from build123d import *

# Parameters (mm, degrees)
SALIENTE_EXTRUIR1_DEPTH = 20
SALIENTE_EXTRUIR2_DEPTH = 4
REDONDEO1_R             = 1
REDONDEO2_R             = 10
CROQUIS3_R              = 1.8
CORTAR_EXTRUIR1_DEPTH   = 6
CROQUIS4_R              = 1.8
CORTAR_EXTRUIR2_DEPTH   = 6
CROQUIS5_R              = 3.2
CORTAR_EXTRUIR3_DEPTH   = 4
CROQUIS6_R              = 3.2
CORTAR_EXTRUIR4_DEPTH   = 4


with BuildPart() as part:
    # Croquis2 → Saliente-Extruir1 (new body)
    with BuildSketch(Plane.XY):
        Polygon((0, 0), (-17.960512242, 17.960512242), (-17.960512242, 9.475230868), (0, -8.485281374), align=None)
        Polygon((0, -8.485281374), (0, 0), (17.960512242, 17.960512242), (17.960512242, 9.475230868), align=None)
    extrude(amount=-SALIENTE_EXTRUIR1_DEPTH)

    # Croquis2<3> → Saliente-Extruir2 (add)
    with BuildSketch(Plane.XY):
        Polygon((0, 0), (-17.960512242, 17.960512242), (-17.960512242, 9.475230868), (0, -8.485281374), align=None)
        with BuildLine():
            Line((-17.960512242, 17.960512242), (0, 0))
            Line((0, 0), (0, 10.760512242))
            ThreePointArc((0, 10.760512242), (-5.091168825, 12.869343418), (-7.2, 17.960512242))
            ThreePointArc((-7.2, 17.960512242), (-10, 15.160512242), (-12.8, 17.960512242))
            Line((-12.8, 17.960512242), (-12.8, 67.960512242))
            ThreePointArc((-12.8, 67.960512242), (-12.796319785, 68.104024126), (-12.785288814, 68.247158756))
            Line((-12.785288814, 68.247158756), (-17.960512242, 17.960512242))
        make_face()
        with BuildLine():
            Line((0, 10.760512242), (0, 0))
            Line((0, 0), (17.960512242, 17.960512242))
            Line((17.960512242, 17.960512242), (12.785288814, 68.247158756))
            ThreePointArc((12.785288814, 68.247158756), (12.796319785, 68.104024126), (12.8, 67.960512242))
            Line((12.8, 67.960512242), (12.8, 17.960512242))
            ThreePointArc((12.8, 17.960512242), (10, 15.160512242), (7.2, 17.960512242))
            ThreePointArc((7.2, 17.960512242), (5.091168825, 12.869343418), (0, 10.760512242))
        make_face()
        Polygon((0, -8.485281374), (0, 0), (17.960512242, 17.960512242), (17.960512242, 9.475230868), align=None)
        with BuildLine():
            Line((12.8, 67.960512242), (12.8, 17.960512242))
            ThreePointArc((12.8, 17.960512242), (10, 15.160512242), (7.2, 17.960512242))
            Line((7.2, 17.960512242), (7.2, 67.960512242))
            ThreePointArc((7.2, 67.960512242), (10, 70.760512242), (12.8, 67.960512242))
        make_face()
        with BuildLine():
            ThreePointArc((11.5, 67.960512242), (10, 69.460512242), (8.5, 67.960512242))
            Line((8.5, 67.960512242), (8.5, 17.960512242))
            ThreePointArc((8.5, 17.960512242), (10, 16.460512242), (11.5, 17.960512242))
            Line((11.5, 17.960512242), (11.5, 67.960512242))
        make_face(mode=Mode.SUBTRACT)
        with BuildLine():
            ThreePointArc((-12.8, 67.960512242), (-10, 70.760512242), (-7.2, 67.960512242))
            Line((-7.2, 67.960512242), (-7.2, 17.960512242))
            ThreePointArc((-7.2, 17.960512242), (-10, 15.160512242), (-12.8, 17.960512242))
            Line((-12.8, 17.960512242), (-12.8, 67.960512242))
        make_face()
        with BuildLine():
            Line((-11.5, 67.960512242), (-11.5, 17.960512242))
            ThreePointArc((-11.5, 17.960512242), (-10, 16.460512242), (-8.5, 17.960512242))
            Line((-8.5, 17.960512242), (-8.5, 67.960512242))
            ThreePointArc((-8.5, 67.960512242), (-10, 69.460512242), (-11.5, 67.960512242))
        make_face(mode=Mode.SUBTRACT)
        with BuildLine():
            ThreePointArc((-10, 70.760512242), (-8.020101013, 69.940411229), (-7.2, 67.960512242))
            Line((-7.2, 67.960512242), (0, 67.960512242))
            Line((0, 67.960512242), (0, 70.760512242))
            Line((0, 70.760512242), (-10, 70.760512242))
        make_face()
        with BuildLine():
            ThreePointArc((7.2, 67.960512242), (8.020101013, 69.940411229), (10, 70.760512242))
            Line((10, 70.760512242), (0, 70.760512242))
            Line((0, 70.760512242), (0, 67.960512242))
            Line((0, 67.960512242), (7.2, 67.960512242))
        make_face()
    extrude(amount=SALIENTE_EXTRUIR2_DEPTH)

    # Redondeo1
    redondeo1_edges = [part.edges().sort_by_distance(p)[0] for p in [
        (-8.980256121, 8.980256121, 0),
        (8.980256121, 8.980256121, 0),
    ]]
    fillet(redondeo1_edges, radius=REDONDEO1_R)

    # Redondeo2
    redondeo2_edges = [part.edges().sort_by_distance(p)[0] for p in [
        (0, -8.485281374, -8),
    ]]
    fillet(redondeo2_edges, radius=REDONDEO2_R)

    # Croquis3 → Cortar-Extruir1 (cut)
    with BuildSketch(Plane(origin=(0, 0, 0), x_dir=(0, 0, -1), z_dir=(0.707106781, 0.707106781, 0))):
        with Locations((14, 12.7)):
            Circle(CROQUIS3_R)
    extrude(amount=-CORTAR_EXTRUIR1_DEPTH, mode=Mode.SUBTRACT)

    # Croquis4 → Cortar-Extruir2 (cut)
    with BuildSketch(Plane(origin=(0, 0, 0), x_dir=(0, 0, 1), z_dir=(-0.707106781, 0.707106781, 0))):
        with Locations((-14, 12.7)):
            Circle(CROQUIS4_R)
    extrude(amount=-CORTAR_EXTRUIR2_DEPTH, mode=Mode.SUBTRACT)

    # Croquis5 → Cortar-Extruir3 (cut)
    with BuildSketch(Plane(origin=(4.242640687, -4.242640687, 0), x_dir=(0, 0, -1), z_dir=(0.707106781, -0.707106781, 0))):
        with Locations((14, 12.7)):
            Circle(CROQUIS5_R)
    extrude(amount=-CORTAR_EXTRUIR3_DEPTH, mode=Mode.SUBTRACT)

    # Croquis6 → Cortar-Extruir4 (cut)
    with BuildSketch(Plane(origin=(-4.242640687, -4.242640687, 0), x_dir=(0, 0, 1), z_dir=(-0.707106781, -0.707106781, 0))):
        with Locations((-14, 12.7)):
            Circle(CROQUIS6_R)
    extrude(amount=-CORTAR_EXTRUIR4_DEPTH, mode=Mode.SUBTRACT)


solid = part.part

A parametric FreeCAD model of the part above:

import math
import FreeCAD as App
import Part
import Sketcher
from FreeCAD import Vector
Q = App.Units.Quantity


def edges_at(feature, points):
    """Names of the edges that pass closest to the given points."""
    edges = feature.Shape.Edges
    near = lambda p: min(range(len(edges)), key=lambda i: edges[i].distToShape(Part.Vertex(*p))[0])
    return sorted({f"Edge{near(p) + 1}" for p in points})

doc = App.newDocument("Part")
body = doc.addObject("PartDesign::Body", "Body")

# Sketch on XY plane
sketch1 = doc.addObject("Sketcher::SketchObject", "Sketch")
body.addObject(sketch1)
sketch1.AttachmentSupport = (doc.XY_Plane, [""])
sketch1.MapMode = "FlatFace"
sketch1.addGeometry(Part.LineSegment(Vector(0, 0, 0), Vector(-18, 18, 0)), False)
sketch1.addGeometry(Part.LineSegment(Vector(-18, 18, 0), Vector(-18, 9, 0)), False)
sketch1.addGeometry(Part.LineSegment(Vector(-18, 9, 0), Vector(0, -8, 0)), False)
sketch1.addGeometry(Part.LineSegment(Vector(0, -8, 0), Vector(18, 9, 0)), False)
sketch1.addGeometry(Part.LineSegment(Vector(18, 9, 0), Vector(18, 18, 0)), False)
sketch1.addGeometry(Part.LineSegment(Vector(18, 18, 0), Vector(0, 0, 0)), False)
sketch1.addConstraint(Sketcher.Constraint("Coincident", 0, 2, 1, 1))
sketch1.addConstraint(Sketcher.Constraint("Coincident", 1, 2, 2, 1))
sketch1.addConstraint(Sketcher.Constraint("Coincident", 2, 2, 3, 1))
sketch1.addConstraint(Sketcher.Constraint("Coincident", 3, 2, 4, 1))
sketch1.addConstraint(Sketcher.Constraint("Coincident", 4, 2, 5, 1))
sketch1.addConstraint(Sketcher.Constraint("Coincident", 5, 2, 0, 1))
sketch1.addConstraint(Sketcher.Constraint("Vertical", 1))
sketch1.addConstraint(Sketcher.Constraint("Vertical", 4))
sketch1.addConstraint(Sketcher.Constraint("Coincident", 5, 2, -1, 1))
sketch1.addConstraint(Sketcher.Constraint("Symmetric", 1, 2, 3, 2, -2))
sketch1.addConstraint(Sketcher.Constraint("PointOnObject", 2, 2, -2))
sketch1.addConstraint(Sketcher.Constraint("Parallel", 0, 2))
sketch1.addConstraint(Sketcher.Constraint("Perpendicular", 2, 3))
sketch1.addConstraint(Sketcher.Constraint("Parallel", 3, 5))
sketch1.addConstraint(Sketcher.Constraint("Distance", 0, Q("25.4 mm")))
sketch1.addConstraint(Sketcher.Constraint("DistanceY", 1, 2, 1, 1, Q("8.485281 mm")))
pad1 = doc.addObject("PartDesign::Pad", "Pad")
body.addObject(pad1)
pad1.Profile = sketch1
pad1.Length = 20
pad1.Reversed = True

# Sketch on XY plane
sketch2 = doc.addObject("Sketcher::SketchObject", "Sketch001")
body.addObject(sketch2)
sketch2.AttachmentSupport = (doc.XY_Plane, [""])
sketch2.MapMode = "FlatFace"
sketch2.addGeometry(Part.LineSegment(Vector(-18, 18, 0), Vector(-18, 9.5, 0)), False)
sketch2.addGeometry(Part.LineSegment(Vector(-18, 9.5, 0), Vector(0, -8.5, 0)), False)
sketch2.addGeometry(Part.LineSegment(Vector(0, -8.5, 0), Vector(18, 9.5, 0)), False)
sketch2.addGeometry(Part.LineSegment(Vector(18, 9.5, 0), Vector(18, 18, 0)), False)
sketch2.addGeometry(Part.LineSegment(Vector(18, 18, 0), Vector(12.8, 68.2, 0)), False)
sketch2.addGeometry(Part.ArcOfCircle(Part.Circle(Vector(10, 68, 0), Vector(0, 0, 1), 2.8), math.radians(6), math.radians(90)), False)
sketch2.addGeometry(Part.LineSegment(Vector(10, 70.8, 0), Vector(-10, 70.8, 0)), False)
sketch2.addGeometry(Part.ArcOfCircle(Part.Circle(Vector(-10, 68, 0), Vector(0, 0, 1), 2.8), math.radians(90), math.radians(174)), False)
sketch2.addGeometry(Part.LineSegment(Vector(-12.8, 68.2, 0), Vector(-18, 18, 0)), False)
sketch2.addGeometry(Part.LineSegment(Vector(7.2, 68, 0), Vector(7.2, 18, 0)), False)
sketch2.addGeometry(Part.ArcOfCircle(Part.Circle(Vector(0, 18, 0), Vector(0, 0, 1), 7.2), math.radians(-90), math.radians(0)), False)
sketch2.addGeometry(Part.ArcOfCircle(Part.Circle(Vector(0, 18, 0), Vector(0, 0, 1), 7.2), math.radians(180), math.radians(270)), False)
sketch2.addGeometry(Part.LineSegment(Vector(-7.2, 18, 0), Vector(-7.2, 68, 0)), False)
sketch2.addGeometry(Part.LineSegment(Vector(-7.2, 68, 0), Vector(7.2, 68, 0)), False)
sketch2.addGeometry(Part.LineSegment(Vector(-11.5, 18, 0), Vector(-11.5, 68, 0)), False)
sketch2.addGeometry(Part.ArcOfCircle(Part.Circle(Vector(-10, 68, 0), Vector(0, 0, 1), 1.5), math.radians(0), math.radians(180)), False)
sketch2.addGeometry(Part.LineSegment(Vector(-8.5, 68, 0), Vector(-8.5, 18, 0)), False)
sketch2.addGeometry(Part.ArcOfCircle(Part.Circle(Vector(-10, 18, 0), Vector(0, 0, 1), 1.5), math.radians(180), math.radians(360)), False)
sketch2.addGeometry(Part.ArcOfCircle(Part.Circle(Vector(10, 68, 0), Vector(0, 0, 1), 1.5), math.radians(0), math.radians(180)), False)
sketch2.addGeometry(Part.LineSegment(Vector(11.5, 68, 0), Vector(11.5, 18, 0)), False)
sketch2.addGeometry(Part.ArcOfCircle(Part.Circle(Vector(10, 18, 0), Vector(0, 0, 1), 1.5), math.radians(180), math.radians(360)), False)
sketch2.addGeometry(Part.LineSegment(Vector(8.5, 18, 0), Vector(8.5, 68, 0)), False)
sketch2.addConstraint(Sketcher.Constraint("Coincident", 0, 2, 1, 1))
sketch2.addConstraint(Sketcher.Constraint("Coincident", 1, 2, 2, 1))
sketch2.addConstraint(Sketcher.Constraint("Coincident", 2, 2, 3, 1))
sketch2.addConstraint(Sketcher.Constraint("Coincident", 3, 2, 4, 1))
sketch2.addConstraint(Sketcher.Constraint("Tangent", 4, 2, 5, 1))
sketch2.addConstraint(Sketcher.Constraint("Tangent", 5, 2, 6, 1))
sketch2.addConstraint(Sketcher.Constraint("Tangent", 6, 2, 7, 1))
sketch2.addConstraint(Sketcher.Constraint("Tangent", 7, 2, 8, 1))
sketch2.addConstraint(Sketcher.Constraint("Coincident", 8, 2, 0, 1))
sketch2.addConstraint(Sketcher.Constraint("Tangent", 9, 2, 10, 2))
sketch2.addConstraint(Sketcher.Constraint("Tangent", 10, 1, 11, 2))
sketch2.addConstraint(Sketcher.Constraint("Tangent", 11, 1, 12, 1))
sketch2.addConstraint(Sketcher.Constraint("Coincident", 12, 2, 13, 1))
sketch2.addConstraint(Sketcher.Constraint("Coincident", 13, 2, 9, 1))
sketch2.addConstraint(Sketcher.Constraint("Tangent", 14, 2, 15, 2))
sketch2.addConstraint(Sketcher.Constraint("Tangent", 15, 1, 16, 1))
sketch2.addConstraint(Sketcher.Constraint("Tangent", 16, 2, 17, 2))
sketch2.addConstraint(Sketcher.Constraint("Tangent", 17, 1, 14, 1))
sketch2.addConstraint(Sketcher.Constraint("Tangent", 18, 1, 19, 1))
sketch2.addConstraint(Sketcher.Constraint("Tangent", 19, 2, 20, 2))
sketch2.addConstraint(Sketcher.Constraint("Tangent", 20, 1, 21, 1))
sketch2.addConstraint(Sketcher.Constraint("Tangent", 21, 2, 18, 2))
sketch2.addConstraint(Sketcher.Constraint("Vertical", 0))
sketch2.addConstraint(Sketcher.Constraint("Vertical", 3))
sketch2.addConstraint(Sketcher.Constraint("Horizontal", 6))
sketch2.addConstraint(Sketcher.Constraint("Vertical", 9))
sketch2.addConstraint(Sketcher.Constraint("Vertical", 12))
sketch2.addConstraint(Sketcher.Constraint("Horizontal", 13))
sketch2.addConstraint(Sketcher.Constraint("Vertical", 14))
sketch2.addConstraint(Sketcher.Constraint("Vertical", 16))
sketch2.addConstraint(Sketcher.Constraint("Vertical", 19))
sketch2.addConstraint(Sketcher.Constraint("Vertical", 21))
sketch2.addConstraint(Sketcher.Constraint("Coincident", 15, 3, 7, 3))
sketch2.addConstraint(Sketcher.Constraint("Coincident", 18, 3, 5, 3))
sketch2.addConstraint(Sketcher.Constraint("Equal", 5, 7))
sketch2.addConstraint(Sketcher.Constraint("Equal", 10, 11))
sketch2.addConstraint(Sketcher.Constraint("Equal", 17, 18))
sketch2.addConstraint(Sketcher.Constraint("Symmetric", 17, 3, 20, 3, -2))
sketch2.addConstraint(Sketcher.Constraint("Symmetric", 0, 2, 2, 2, -2))
sketch2.addConstraint(Sketcher.Constraint("PointOnObject", 10, 3, -2))
sketch2.addConstraint(Sketcher.Constraint("PointOnObject", 1, 2, -2))
sketch2.addConstraint(Sketcher.Constraint("PointOnObject", 10, 1, -2))
sketch2.addConstraint(Sketcher.Constraint("Perpendicular", 1, 2))
sketch2.addConstraint(Sketcher.Constraint("Horizontal", 11, 3, 17, 3))
sketch2.addConstraint(Sketcher.Constraint("Horizontal", 20, 3, 3, 2))
sketch2.addConstraint(Sketcher.Constraint("Horizontal", 3, 2, 8, 2))
sketch2.addConstraint(Sketcher.Constraint("Horizontal", 18, 3, 12, 2))
sketch2.addConstraint(Sketcher.Constraint("Radius", 5, Q("2.8 mm")))
sketch2.addConstraint(Sketcher.Constraint("Radius", 10, Q("7.2 mm")))
sketch2.addConstraint(Sketcher.Constraint("Radius", 15, Q("1.5 mm")))
sketch2.addConstraint(Sketcher.Constraint("DistanceX", 6, 2, 6, 1, Q("20 mm")))
sketch2.addConstraint(Sketcher.Constraint("DistanceY", 9, 2, 9, 1, Q("50 mm")))
sketch2.addConstraint(Sketcher.Constraint("Distance", 1, Q("25.4 mm")))
sketch2.addConstraint(Sketcher.Constraint("DistanceY", 0, 2, 0, 1, Q("8.485281 mm")))
sketch2.addConstraint(Sketcher.Constraint("DistanceY", -1, 1, 0, 2, Q("9.475231 mm")))
pad2 = doc.addObject("PartDesign::Pad", "Pad001")
body.addObject(pad2)
pad2.Profile = sketch2
pad2.Length = 4
doc.recompute()

fillet = doc.addObject("PartDesign::Fillet", "Fillet")
body.addObject(fillet)
fillet.Base = (pad2, edges_at(pad2, [(-8.98, 8.98, 0), (8.98, 8.98, 0)]))
fillet.Radius = 1
doc.recompute()

fillet2 = doc.addObject("PartDesign::Fillet", "Fillet001")
body.addObject(fillet2)
fillet2.Base = (fillet, edges_at(fillet, [(0, -8.485, -8)]))
fillet2.Radius = 10

# Sketch on an angled plane
sketch3 = doc.addObject("Sketcher::SketchObject", "Sketch002")
body.addObject(sketch3)
sketch3.Placement = App.Placement(Vector(0, 0, 0), App.Rotation(Vector(0, 0, -1), Vector(-0.707106781, 0.707106781, 0), Vector(0.707106781, 0.707106781, 0), "ZXY"))
sketch3.addGeometry(Part.Circle(Vector(14, 12.7, 0), Vector(0, 0, 1), 1.8), False)
sketch3.addConstraint(Sketcher.Constraint("Diameter", 0, Q("3.6 mm")))
sketch3.addConstraint(Sketcher.Constraint("DistanceX", -1, 1, 0, 3, Q("14 mm")))
sketch3.addConstraint(Sketcher.Constraint("DistanceY", -1, 1, 0, 3, Q("12.7 mm")))
pocket1 = doc.addObject("PartDesign::Pocket", "Pocket")
body.addObject(pocket1)
pocket1.Profile = sketch3
pocket1.Length = 6

# Sketch on an angled plane
sketch4 = doc.addObject("Sketcher::SketchObject", "Sketch003")
body.addObject(sketch4)
sketch4.Placement = App.Placement(Vector(0, 0, 0), App.Rotation(Vector(0, 0, 1), Vector(0.707106781, 0.707106781, 0), Vector(-0.707106781, 0.707106781, 0), "ZXY"))
sketch4.addGeometry(Part.Circle(Vector(-14, 12.7, 0), Vector(0, 0, 1), 1.8), False)
sketch4.addConstraint(Sketcher.Constraint("Diameter", 0, Q("3.6 mm")))
sketch4.addConstraint(Sketcher.Constraint("DistanceX", 0, 3, -1, 1, Q("14 mm")))
sketch4.addConstraint(Sketcher.Constraint("DistanceY", -1, 1, 0, 3, Q("12.7 mm")))
pocket2 = doc.addObject("PartDesign::Pocket", "Pocket001")
body.addObject(pocket2)
pocket2.Profile = sketch4
pocket2.Length = 6

# Sketch on an angled plane
sketch5 = doc.addObject("Sketcher::SketchObject", "Sketch004")
body.addObject(sketch5)
sketch5.Placement = App.Placement(Vector(4.242641, -4.242641, 0), App.Rotation(Vector(0, 0, -1), Vector(0.707106781, 0.707106781, 0), Vector(0.707106781, -0.707106781, 0), "ZXY"))
sketch5.addGeometry(Part.Circle(Vector(14, 12.7, 0), Vector(0, 0, 1), 3.2), False)
sketch5.addConstraint(Sketcher.Constraint("Diameter", 0, Q("6.4 mm")))
sketch5.addConstraint(Sketcher.Constraint("DistanceX", -1, 1, 0, 3, Q("14 mm")))
sketch5.addConstraint(Sketcher.Constraint("DistanceY", -1, 1, 0, 3, Q("12.7 mm")))
pocket3 = doc.addObject("PartDesign::Pocket", "Pocket002")
body.addObject(pocket3)
pocket3.Profile = sketch5
pocket3.Length = 4

# Sketch on an angled plane
sketch6 = doc.addObject("Sketcher::SketchObject", "Sketch005")
body.addObject(sketch6)
sketch6.Placement = App.Placement(Vector(-4.242641, -4.242641, 0), App.Rotation(Vector(0, 0, 1), Vector(-0.707106781, 0.707106781, 0), Vector(-0.707106781, -0.707106781, 0), "ZXY"))
sketch6.addGeometry(Part.Circle(Vector(-14, 12.7, 0), Vector(0, 0, 1), 3.2), False)
sketch6.addConstraint(Sketcher.Constraint("Diameter", 0, Q("6.4 mm")))
sketch6.addConstraint(Sketcher.Constraint("DistanceX", 0, 3, -1, 1, Q("14 mm")))
sketch6.addConstraint(Sketcher.Constraint("DistanceY", -1, 1, 0, 3, Q("12.7 mm")))
pocket4 = doc.addObject("PartDesign::Pocket", "Pocket003")
body.addObject(pocket4)
pocket4.Profile = sketch6
pocket4.Length = 4

doc.recompute()
